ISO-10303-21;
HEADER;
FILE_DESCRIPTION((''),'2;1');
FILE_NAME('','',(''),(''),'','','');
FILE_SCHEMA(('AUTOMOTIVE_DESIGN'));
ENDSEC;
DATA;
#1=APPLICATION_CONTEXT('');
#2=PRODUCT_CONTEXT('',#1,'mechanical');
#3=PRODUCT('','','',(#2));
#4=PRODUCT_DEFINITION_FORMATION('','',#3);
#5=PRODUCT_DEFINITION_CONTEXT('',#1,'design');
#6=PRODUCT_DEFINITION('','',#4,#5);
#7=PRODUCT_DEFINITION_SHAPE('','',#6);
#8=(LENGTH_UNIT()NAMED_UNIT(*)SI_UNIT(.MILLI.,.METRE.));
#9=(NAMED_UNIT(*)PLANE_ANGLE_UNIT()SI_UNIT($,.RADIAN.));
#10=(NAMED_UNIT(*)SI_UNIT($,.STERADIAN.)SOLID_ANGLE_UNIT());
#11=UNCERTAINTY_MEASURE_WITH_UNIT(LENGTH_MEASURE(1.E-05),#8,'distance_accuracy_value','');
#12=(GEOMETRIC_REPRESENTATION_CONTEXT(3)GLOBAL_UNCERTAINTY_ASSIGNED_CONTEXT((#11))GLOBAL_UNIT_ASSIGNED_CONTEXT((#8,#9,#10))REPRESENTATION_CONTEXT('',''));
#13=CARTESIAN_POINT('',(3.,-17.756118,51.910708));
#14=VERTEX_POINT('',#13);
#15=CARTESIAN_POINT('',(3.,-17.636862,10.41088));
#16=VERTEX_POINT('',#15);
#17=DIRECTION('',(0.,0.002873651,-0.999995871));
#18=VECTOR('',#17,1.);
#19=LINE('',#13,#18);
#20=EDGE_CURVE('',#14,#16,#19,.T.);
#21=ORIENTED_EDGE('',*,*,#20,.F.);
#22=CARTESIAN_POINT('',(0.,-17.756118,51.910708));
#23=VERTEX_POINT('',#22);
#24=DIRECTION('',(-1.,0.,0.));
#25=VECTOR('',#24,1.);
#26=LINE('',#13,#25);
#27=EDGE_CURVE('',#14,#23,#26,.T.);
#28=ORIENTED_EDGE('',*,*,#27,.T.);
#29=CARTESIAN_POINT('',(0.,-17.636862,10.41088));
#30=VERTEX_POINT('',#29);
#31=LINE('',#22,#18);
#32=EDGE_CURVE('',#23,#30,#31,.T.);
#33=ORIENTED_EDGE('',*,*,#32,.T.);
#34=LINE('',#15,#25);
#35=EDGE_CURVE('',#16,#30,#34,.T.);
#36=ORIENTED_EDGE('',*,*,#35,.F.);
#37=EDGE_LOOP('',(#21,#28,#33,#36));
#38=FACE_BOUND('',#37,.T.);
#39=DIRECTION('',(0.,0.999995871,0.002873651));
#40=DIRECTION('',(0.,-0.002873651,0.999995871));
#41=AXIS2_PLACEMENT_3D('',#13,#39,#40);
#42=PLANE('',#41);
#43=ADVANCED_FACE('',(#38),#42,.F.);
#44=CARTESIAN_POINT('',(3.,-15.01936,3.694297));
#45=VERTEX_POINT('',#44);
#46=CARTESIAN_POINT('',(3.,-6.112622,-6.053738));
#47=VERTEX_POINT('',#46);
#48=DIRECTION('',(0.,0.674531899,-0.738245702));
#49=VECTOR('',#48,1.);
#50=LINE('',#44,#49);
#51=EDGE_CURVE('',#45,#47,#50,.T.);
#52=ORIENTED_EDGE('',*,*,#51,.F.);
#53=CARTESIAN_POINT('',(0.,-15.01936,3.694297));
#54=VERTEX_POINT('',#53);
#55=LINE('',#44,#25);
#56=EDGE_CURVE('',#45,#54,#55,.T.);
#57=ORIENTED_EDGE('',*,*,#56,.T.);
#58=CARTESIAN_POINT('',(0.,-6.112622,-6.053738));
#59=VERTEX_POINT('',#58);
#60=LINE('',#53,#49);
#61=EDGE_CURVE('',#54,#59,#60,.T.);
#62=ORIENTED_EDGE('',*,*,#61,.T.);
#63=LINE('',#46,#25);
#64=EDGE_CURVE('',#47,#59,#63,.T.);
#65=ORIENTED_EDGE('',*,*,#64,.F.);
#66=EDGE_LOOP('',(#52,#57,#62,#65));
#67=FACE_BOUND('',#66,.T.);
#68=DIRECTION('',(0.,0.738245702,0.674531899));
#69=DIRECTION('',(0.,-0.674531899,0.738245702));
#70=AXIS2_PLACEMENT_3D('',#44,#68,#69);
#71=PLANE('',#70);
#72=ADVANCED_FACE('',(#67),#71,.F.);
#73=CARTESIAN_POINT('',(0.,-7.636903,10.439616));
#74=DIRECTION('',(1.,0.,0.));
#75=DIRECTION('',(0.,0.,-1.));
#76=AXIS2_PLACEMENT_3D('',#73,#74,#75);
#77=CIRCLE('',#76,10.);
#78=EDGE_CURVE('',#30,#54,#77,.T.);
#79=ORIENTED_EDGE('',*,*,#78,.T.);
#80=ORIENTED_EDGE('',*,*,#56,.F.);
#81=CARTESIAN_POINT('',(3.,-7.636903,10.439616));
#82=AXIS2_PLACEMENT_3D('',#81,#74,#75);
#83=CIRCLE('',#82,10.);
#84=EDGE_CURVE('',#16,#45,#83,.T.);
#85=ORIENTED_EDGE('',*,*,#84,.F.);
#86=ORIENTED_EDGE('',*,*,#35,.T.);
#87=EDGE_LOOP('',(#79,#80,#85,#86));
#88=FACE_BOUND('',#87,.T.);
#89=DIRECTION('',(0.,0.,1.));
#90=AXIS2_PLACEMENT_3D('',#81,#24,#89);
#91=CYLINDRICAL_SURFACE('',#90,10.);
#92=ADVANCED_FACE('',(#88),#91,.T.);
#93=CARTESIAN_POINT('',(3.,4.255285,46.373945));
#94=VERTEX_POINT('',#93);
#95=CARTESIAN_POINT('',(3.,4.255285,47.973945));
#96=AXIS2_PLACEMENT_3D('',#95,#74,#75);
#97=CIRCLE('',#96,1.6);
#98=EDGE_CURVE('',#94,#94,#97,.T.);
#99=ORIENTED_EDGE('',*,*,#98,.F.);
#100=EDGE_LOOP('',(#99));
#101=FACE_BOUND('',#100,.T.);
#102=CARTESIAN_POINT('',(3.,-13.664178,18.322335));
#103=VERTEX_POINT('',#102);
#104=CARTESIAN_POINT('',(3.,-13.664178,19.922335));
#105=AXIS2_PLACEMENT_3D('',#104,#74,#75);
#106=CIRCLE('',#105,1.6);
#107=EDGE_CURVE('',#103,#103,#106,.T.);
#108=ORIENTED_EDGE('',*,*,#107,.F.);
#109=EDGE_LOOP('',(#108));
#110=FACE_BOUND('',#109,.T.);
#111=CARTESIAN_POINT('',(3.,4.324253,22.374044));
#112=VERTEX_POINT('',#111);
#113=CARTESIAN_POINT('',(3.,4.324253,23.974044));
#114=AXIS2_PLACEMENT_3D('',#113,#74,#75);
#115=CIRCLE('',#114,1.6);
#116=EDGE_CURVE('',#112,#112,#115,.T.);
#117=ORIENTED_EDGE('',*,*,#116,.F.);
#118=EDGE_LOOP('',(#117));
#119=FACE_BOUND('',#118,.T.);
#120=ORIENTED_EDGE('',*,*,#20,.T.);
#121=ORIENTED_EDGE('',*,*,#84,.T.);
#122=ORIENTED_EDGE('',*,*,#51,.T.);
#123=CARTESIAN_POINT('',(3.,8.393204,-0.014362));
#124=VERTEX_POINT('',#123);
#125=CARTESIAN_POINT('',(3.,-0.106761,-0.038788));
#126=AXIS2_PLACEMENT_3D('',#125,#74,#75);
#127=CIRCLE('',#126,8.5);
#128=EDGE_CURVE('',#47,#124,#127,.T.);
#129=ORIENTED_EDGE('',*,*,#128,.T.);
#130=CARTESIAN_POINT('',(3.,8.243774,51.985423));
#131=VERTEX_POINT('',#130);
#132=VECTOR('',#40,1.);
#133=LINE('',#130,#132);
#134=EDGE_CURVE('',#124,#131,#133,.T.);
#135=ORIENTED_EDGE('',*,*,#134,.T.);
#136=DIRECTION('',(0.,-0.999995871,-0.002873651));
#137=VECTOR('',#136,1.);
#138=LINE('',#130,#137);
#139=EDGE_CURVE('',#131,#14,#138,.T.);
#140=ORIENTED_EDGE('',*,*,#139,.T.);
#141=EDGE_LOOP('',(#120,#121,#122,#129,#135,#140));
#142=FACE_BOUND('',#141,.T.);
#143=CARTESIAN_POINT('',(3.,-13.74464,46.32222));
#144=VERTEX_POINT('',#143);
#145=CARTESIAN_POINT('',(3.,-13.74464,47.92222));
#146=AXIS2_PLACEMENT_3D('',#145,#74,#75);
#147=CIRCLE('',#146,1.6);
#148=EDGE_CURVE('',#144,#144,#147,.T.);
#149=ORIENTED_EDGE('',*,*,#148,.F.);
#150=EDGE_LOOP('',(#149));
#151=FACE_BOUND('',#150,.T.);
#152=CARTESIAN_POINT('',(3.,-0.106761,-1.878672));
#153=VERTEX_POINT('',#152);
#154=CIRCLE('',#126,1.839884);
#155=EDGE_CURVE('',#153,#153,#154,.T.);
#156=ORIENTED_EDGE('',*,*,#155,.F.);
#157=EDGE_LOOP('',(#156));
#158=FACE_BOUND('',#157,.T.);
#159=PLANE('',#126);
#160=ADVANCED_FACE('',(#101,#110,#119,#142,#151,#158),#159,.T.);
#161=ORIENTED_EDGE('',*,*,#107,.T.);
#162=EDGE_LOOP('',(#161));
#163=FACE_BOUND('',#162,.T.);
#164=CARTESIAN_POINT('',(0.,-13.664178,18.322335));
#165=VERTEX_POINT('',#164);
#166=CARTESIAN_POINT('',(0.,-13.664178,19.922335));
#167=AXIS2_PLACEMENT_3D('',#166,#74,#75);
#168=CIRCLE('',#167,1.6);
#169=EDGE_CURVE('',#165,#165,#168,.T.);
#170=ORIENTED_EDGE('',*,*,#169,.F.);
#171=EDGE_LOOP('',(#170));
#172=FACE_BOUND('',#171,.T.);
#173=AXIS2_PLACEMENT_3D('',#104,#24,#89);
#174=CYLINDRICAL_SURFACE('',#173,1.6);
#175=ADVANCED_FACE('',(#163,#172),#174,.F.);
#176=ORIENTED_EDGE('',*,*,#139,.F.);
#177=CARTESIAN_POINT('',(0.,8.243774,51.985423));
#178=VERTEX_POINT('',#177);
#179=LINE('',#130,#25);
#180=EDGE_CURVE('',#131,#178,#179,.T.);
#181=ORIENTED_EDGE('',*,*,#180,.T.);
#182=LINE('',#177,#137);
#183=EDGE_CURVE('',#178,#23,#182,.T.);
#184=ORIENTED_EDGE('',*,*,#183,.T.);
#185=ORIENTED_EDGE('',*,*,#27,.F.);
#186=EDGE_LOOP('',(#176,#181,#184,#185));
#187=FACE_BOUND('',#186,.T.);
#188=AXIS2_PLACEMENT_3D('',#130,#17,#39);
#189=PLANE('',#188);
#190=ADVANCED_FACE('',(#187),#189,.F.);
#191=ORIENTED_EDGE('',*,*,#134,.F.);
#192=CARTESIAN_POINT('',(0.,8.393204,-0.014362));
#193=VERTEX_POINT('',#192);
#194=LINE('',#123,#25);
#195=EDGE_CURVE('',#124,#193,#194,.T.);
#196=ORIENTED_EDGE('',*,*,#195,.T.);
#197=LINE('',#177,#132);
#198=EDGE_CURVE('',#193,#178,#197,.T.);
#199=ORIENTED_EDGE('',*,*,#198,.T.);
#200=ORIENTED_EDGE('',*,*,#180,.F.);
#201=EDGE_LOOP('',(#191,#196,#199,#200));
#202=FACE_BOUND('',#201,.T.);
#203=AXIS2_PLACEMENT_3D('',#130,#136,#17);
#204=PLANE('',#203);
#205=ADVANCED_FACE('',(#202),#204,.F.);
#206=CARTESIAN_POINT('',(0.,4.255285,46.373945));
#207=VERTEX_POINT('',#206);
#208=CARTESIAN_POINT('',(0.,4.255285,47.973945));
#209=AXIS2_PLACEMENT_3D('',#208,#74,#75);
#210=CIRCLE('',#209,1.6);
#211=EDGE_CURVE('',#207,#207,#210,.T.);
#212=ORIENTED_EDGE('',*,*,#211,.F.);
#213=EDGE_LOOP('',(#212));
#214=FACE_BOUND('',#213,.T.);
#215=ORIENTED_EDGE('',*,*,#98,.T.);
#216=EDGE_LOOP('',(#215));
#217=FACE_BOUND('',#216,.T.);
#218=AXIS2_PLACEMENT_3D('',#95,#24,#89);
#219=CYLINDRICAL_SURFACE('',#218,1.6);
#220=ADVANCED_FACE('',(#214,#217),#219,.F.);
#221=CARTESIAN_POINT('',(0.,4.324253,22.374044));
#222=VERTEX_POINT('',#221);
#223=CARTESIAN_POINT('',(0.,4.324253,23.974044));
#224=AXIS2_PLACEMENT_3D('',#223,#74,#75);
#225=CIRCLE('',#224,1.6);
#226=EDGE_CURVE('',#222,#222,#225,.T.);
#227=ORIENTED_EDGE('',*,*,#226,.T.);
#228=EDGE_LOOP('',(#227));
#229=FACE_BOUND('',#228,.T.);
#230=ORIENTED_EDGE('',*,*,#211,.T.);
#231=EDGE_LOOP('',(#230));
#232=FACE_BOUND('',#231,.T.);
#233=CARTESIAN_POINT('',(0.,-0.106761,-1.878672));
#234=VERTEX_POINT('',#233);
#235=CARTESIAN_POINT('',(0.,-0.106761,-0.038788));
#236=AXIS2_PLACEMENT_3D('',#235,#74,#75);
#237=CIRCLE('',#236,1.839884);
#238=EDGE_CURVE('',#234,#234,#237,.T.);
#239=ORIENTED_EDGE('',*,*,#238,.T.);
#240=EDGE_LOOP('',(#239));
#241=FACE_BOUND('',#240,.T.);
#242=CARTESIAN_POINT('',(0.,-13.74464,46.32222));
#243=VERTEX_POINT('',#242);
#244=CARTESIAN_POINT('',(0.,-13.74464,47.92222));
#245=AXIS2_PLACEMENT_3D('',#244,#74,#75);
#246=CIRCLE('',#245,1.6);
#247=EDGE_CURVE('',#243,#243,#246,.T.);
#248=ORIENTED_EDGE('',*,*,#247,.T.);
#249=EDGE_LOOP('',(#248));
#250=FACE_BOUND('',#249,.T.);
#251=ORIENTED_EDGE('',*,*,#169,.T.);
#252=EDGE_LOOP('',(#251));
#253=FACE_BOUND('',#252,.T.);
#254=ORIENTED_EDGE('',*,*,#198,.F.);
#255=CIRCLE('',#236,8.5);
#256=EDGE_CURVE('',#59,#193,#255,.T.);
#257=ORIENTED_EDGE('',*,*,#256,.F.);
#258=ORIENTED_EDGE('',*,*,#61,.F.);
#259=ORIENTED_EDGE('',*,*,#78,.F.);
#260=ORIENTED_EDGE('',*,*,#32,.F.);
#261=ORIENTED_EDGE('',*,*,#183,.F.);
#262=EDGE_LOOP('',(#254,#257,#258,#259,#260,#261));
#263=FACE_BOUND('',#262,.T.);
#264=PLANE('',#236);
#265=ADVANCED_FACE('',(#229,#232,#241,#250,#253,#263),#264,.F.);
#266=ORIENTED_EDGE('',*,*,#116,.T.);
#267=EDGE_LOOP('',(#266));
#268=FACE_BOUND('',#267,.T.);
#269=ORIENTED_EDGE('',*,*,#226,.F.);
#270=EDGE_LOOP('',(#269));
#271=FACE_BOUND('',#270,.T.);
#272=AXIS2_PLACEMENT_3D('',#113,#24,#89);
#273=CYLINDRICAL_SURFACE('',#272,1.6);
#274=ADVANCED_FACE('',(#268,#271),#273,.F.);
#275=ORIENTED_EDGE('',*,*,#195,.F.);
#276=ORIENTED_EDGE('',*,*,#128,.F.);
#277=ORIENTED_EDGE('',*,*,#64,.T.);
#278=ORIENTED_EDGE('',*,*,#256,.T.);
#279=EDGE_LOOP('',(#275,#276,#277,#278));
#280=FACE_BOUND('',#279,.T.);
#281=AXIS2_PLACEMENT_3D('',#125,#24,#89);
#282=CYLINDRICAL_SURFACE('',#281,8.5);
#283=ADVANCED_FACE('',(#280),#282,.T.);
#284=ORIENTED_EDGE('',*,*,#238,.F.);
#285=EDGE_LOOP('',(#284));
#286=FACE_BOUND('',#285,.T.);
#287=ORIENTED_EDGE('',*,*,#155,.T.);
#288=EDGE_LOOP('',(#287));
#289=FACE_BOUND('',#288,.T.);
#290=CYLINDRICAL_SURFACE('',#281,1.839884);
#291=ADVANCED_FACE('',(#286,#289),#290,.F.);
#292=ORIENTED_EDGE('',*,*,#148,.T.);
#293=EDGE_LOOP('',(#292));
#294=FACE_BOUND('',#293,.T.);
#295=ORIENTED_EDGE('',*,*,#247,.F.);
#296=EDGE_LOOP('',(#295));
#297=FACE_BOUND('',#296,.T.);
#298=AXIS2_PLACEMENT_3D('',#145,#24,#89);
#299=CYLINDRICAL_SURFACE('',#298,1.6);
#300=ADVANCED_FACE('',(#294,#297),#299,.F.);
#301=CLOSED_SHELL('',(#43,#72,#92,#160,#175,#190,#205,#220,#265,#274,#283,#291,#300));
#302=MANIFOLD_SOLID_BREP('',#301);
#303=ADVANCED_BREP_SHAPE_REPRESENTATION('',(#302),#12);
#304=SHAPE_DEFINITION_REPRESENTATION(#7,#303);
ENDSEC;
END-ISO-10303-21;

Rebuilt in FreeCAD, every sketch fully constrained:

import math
import FreeCAD as App
import Part
import Sketcher
from FreeCAD import Vector
Q = App.Units.Quantity

doc = App.newDocument("Part")
body = doc.addObject("PartDesign::Body", "Body")

# Sketch on YZ plane
sketch1 = body.newObject("Sketcher::SketchObject", "Sketch")
sketch1.AttachmentSupport = (doc.getObject("YZ_Plane"), [""])
sketch1.MapMode = "FlatFace"
sketch1.addGeometry([
    Part.LineSegment(Vector(-17.8, 51.9, 0), Vector(-17.6, 10.4, 0)),  # 0
    Part.ArcOfCircle(Part.Circle(Vector(-7.6, 10.4, 0), Vector(0, 0, 1), 10), math.radians(-180), math.radians(-138)),  # 1
    Part.LineSegment(Vector(-15, 3.7, 0), Vector(-6.1, -6.1, 0)),  # 2
    Part.ArcOfCircle(Part.Circle(Vector(-0.1, 0, 0), Vector(0, 0, 1), 8.5), math.radians(-135), math.radians(0)),  # 3
    Part.LineSegment(Vector(8.4, 0, 0), Vector(8.2, 52, 0)),  # 4
    Part.LineSegment(Vector(8.2, 52, 0), Vector(-17.8, 51.9, 0)),  # 5
    Part.Circle(Vector(-13.7, 47.9, 0), Vector(0, 0, 1), 1.6),  # 6
    Part.Circle(Vector(-13.7, 19.9, 0), Vector(0, 0, 1), 1.6),  # 7
    Part.Circle(Vector(4.3, 48, 0), Vector(0, 0, 1), 1.6),  # 8
    Part.Circle(Vector(4.3, 24, 0), Vector(0, 0, 1), 1.6),  # 9
    Part.Circle(Vector(-0.1, 0, 0), Vector(0, 0, 1), 1.8),  # 10
], False)
sketch1.addConstraint([
    Sketcher.Constraint("Tangent", 0, 2, 1, 1),
    Sketcher.Constraint("Tangent", 1, 2, 2, 1),
    Sketcher.Constraint("Coincident", 2, 2, 3, 1),
    Sketcher.Constraint("Tangent", 3, 2, 4, 1),
    Sketcher.Constraint("Coincident", 4, 2, 5, 1),
    Sketcher.Constraint("Coincident", 5, 2, 0, 1),
    Sketcher.Constraint("Coincident", 10, 3, 3, 3),
    Sketcher.Constraint("Equal", 6, 7),
    Sketcher.Constraint("Equal", 7, 8),
    Sketcher.Constraint("Equal", 8, 9),
    Sketcher.Constraint("Parallel", 0, 4),
    Sketcher.Constraint("Perpendicular", 4, 5),
    Sketcher.Constraint("Radius", 1, Q("10 mm")),
    Sketcher.Constraint("Diameter", 6, Q("3.2 mm")),
    Sketcher.Constraint("Radius", 3, Q("8.5 mm")),
    Sketcher.Constraint("Distance", 4, Q("52 mm")),
    Sketcher.Constraint("Distance", 5, Q("26 mm")),
    Sketcher.Constraint("Distance", 0, Q("41.5 mm")),
    Sketcher.Constraint("Diameter", 10, Q("3.679768 mm")),
    Sketcher.Constraint("DistanceY", 9, 3, 8, 3, Q("23.999901 mm")),
    Sketcher.Constraint("DistanceX", 0, 2, 3, 3, Q("17.530101 mm")),
    Sketcher.Constraint("DistanceX", 0, 2, 1, 2, Q("2.617502 mm")),
    Sketcher.Constraint("DistanceX", 3, 3, -1, 1, Q("0.106761 mm")),
    Sketcher.Constraint("DistanceX", 6, 3, -1, 1, Q("13.74464 mm")),
    Sketcher.Constraint("DistanceY", -1, 1, 6, 3, Q("47.92222 mm")),
    Sketcher.Constraint("DistanceX", 7, 3, -1, 1, Q("13.664178 mm")),
    Sketcher.Constraint("DistanceY", -1, 1, 0, 2, Q("10.41088 mm")),
    Sketcher.Constraint("DistanceY", 1, 3, 7, 3, Q("9.482719 mm")),
    Sketcher.Constraint("DistanceY", 7, 3, 8, 3, Q("28.05161 mm")),
    Sketcher.Constraint("DistanceX", 1, 3, 8, 3, Q("11.892189 mm")),
    Sketcher.Constraint("DistanceX", 7, 3, 9, 3, Q("17.988431 mm")),
])
pad1 = body.newObject("PartDesign::Pad", "Pad")
pad1.Profile = sketch1
pad1.Length = 3

doc.recompute()
